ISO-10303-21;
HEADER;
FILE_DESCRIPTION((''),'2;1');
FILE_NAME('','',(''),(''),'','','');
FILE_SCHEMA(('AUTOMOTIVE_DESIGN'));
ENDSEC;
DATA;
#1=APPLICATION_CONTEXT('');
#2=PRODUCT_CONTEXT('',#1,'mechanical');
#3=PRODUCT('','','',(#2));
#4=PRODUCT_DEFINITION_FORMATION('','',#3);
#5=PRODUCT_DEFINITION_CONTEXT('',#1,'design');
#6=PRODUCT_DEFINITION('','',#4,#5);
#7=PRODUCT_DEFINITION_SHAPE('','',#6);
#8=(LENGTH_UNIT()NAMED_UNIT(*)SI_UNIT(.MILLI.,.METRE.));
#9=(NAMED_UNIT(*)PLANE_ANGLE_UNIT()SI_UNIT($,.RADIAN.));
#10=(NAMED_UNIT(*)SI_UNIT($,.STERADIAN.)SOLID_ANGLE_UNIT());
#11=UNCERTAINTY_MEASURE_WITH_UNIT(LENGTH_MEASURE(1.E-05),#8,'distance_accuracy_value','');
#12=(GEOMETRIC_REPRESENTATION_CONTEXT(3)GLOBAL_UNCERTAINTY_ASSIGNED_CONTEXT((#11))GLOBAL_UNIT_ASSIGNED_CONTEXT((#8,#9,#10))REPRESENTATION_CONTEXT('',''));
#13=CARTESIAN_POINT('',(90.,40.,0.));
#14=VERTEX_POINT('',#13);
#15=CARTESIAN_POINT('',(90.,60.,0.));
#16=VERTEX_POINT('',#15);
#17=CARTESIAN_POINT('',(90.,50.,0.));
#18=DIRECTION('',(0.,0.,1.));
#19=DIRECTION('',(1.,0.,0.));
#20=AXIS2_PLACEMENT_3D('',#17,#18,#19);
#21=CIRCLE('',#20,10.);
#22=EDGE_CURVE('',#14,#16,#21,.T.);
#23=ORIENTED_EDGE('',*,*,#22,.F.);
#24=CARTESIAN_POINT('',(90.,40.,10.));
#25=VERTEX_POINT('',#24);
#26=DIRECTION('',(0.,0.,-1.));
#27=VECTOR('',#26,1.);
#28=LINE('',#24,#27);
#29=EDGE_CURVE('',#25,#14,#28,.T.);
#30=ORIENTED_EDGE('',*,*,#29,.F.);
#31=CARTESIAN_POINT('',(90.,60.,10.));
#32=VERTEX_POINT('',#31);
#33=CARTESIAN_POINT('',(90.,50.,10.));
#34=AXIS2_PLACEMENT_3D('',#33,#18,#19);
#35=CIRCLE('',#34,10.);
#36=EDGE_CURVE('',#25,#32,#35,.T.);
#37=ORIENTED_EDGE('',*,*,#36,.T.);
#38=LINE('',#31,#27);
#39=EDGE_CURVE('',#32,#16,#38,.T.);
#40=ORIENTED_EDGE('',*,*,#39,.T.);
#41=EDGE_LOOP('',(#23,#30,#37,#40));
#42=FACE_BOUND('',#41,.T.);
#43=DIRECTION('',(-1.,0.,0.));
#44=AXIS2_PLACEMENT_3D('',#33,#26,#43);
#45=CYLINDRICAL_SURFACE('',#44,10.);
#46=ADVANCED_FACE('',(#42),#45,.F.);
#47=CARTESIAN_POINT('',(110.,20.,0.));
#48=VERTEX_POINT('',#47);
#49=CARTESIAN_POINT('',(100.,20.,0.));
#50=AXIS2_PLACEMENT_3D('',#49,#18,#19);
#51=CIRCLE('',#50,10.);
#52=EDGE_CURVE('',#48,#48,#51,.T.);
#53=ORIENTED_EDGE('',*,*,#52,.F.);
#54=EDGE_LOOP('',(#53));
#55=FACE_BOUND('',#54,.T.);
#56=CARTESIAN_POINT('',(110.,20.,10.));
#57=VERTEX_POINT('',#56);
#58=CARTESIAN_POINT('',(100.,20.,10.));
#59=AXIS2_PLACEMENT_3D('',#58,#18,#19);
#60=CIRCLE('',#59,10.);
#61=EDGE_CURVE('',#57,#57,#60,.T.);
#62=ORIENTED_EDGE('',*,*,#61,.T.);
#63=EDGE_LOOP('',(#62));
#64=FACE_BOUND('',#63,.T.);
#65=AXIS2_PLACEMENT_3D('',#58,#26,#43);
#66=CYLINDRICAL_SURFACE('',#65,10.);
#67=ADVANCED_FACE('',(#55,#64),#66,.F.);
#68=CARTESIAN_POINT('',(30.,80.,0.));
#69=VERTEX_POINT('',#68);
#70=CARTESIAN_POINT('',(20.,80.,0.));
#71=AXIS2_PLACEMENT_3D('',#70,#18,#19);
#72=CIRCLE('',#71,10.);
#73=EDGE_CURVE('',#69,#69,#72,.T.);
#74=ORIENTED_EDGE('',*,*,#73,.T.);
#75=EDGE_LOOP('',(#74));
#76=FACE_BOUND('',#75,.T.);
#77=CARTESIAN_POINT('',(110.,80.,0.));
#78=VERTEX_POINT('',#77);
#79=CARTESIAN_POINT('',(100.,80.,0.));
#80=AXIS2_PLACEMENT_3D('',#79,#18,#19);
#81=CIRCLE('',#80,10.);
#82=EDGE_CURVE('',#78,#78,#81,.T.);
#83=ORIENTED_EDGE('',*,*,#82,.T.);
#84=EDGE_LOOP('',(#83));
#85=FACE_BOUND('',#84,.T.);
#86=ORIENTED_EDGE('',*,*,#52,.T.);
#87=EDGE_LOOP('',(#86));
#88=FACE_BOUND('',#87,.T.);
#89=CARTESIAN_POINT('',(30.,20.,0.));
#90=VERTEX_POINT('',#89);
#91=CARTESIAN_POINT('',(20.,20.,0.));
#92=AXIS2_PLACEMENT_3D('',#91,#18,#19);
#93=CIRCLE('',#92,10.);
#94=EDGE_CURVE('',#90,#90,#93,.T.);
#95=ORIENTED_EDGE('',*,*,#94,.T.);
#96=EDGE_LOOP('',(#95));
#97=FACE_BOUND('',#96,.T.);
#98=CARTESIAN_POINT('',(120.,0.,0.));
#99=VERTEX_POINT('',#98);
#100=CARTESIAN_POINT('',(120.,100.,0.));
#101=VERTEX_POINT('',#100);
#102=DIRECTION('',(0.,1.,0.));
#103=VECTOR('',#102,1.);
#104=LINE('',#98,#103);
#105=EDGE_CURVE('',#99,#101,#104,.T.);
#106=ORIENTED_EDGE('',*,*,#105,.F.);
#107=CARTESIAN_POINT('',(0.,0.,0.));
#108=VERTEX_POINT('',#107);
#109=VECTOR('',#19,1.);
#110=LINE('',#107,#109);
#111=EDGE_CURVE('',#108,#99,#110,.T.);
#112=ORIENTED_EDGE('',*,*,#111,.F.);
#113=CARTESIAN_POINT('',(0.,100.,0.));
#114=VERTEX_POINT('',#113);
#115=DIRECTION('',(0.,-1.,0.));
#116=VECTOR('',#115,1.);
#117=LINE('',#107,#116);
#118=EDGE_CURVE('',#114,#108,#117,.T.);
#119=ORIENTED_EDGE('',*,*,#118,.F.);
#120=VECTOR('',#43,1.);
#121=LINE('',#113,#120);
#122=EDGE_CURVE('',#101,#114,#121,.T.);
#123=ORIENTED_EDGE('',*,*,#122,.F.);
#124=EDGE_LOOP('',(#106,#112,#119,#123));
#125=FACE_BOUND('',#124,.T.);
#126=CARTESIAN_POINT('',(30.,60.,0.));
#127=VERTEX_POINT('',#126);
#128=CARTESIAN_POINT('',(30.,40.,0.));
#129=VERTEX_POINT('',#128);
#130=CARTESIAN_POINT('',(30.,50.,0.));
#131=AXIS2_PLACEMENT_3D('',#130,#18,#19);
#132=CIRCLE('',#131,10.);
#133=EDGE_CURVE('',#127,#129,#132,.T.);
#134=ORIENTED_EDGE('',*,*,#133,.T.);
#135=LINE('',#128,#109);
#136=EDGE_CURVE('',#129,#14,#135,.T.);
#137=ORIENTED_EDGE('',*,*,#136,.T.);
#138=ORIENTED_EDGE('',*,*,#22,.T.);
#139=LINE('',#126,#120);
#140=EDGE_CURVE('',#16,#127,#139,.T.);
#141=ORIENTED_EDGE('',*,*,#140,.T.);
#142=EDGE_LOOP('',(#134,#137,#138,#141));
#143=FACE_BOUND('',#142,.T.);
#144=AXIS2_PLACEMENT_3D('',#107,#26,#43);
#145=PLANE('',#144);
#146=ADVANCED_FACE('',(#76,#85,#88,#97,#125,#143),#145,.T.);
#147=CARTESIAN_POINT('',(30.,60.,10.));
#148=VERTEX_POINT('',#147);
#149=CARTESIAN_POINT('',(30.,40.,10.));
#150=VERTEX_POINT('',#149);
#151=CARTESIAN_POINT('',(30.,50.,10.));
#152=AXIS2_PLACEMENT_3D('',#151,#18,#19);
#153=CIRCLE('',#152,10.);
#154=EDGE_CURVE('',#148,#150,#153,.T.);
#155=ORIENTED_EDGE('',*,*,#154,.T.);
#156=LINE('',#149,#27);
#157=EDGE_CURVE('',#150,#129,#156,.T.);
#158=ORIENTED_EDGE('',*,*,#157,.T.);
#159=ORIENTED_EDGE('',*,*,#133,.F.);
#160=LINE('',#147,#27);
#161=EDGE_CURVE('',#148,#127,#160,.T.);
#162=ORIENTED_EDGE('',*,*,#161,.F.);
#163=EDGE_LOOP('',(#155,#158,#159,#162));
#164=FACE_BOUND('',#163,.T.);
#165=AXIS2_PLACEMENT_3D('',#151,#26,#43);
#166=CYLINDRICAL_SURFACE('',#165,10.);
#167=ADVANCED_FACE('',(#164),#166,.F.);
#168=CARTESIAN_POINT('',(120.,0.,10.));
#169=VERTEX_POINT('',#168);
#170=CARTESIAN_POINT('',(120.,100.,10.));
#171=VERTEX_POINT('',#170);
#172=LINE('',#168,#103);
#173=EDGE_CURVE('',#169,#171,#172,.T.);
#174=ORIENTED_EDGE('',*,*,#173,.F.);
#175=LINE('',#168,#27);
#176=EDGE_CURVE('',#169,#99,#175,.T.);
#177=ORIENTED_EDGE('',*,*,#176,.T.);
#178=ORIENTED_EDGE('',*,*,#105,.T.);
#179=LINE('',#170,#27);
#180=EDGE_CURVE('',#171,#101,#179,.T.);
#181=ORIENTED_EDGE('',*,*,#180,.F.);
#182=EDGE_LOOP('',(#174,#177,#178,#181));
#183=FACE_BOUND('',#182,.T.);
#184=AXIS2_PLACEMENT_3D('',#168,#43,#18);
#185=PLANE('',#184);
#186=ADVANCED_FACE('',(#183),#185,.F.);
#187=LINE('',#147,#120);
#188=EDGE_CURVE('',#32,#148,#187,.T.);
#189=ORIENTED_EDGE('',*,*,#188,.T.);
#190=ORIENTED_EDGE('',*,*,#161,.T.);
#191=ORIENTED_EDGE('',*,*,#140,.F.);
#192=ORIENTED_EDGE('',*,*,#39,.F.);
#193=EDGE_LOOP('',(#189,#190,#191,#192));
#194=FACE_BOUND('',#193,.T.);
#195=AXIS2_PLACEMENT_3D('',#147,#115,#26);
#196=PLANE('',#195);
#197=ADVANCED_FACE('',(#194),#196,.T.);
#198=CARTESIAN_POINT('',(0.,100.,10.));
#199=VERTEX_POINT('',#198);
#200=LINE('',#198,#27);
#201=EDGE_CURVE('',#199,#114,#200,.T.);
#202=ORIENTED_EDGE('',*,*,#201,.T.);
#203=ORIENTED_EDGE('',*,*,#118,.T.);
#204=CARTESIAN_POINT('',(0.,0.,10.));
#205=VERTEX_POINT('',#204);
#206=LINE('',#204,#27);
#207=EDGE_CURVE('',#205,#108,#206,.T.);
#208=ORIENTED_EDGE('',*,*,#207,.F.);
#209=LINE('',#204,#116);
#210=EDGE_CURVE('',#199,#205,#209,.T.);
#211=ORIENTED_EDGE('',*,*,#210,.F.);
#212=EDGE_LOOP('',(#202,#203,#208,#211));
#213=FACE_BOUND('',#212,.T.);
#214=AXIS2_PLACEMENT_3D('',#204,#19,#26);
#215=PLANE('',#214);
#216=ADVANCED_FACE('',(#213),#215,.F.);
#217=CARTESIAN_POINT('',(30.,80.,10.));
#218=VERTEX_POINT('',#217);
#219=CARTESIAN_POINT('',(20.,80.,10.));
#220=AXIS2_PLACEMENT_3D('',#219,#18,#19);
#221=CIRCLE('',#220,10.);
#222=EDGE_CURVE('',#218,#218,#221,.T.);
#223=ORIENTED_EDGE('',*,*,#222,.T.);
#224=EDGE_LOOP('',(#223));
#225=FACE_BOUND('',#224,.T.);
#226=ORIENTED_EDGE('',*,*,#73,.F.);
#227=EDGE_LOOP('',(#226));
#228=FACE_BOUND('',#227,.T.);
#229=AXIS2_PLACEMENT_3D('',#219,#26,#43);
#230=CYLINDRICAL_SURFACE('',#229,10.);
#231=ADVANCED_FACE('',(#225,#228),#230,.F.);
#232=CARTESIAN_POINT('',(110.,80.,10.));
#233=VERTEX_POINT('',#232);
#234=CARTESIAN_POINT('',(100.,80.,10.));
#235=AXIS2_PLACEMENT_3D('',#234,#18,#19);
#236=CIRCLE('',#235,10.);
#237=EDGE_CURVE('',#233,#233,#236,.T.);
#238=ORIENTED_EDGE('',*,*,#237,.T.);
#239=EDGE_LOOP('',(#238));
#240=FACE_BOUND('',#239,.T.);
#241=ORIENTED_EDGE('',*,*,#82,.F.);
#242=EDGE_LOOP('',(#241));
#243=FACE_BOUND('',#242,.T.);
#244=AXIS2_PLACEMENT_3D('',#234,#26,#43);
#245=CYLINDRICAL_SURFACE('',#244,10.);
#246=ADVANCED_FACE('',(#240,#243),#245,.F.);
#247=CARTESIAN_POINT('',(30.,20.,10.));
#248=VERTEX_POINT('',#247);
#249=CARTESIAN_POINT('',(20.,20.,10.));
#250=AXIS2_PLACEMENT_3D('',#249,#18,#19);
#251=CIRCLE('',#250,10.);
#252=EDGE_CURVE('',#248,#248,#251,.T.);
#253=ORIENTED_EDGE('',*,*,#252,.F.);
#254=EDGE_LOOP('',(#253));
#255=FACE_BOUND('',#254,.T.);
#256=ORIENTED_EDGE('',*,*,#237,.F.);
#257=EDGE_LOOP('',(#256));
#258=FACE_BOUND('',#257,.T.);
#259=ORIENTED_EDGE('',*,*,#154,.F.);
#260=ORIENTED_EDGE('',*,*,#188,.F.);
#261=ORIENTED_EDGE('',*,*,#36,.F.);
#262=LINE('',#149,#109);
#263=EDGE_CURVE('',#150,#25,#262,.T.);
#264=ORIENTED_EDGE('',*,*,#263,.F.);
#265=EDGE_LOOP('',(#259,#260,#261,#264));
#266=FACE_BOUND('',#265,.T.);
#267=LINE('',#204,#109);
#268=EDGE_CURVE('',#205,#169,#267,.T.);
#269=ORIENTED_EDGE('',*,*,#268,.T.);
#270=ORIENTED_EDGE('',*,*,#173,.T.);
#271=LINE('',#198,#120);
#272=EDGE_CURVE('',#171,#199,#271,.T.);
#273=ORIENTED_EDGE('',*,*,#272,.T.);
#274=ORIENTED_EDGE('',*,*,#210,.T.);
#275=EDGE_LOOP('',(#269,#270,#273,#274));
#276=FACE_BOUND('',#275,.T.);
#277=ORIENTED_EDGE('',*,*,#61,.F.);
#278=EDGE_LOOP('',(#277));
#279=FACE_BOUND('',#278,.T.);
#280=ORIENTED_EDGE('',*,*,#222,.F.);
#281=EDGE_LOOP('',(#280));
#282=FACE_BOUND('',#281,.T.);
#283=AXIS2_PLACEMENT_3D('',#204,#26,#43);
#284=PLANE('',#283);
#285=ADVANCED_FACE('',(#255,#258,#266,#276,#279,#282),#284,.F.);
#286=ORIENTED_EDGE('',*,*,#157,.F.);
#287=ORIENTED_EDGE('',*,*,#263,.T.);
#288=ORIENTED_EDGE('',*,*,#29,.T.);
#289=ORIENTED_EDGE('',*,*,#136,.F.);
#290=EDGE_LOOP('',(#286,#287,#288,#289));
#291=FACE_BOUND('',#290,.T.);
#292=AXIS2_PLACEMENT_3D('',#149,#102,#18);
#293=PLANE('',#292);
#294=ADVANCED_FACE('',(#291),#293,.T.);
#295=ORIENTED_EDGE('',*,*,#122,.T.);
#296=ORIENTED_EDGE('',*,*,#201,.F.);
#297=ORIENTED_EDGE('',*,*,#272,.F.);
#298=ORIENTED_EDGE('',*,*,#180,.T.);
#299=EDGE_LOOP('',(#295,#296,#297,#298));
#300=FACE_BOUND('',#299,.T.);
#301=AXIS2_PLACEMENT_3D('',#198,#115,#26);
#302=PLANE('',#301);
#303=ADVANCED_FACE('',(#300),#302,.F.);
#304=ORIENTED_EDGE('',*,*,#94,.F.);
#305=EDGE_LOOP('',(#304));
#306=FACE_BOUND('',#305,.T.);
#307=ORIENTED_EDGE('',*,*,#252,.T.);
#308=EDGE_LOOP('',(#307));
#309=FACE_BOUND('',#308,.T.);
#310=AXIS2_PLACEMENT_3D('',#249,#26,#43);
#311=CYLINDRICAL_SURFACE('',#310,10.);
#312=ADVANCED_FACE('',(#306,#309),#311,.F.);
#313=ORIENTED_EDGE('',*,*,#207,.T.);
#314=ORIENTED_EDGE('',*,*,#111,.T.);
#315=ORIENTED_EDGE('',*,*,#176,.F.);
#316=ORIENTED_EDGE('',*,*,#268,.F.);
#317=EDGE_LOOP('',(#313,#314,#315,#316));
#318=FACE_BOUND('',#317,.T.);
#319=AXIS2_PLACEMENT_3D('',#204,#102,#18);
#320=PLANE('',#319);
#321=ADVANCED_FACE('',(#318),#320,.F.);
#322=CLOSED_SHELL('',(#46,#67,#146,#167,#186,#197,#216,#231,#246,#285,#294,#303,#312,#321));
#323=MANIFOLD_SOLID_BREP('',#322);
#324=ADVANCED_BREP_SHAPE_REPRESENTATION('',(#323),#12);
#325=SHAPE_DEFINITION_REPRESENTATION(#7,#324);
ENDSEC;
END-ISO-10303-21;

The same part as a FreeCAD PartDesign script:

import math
import FreeCAD as App
import Part
import Sketcher
from FreeCAD import Vector


def add_polygon(sketch, points):
    """Adds a closed chain of lines whose ends are joined by coincident constraints."""
    first, n = sketch.GeometryCount, len(points)
    for a, b in zip(points, points[1:] + points[:1]):
        sketch.addGeometry(Part.LineSegment(App.Vector(*a, 0), App.Vector(*b, 0)), False)
    for i in range(n):
        sketch.addConstraint(Sketcher.Constraint("Coincident", first + i, 2, first + (i + 1) % n, 1))

doc = App.newDocument("Part")
body = doc.addObject("PartDesign::Body", "Body")

# Sketch on XY plane
sketch1 = doc.addObject("Sketcher::SketchObject", "Sketch")
body.addObject(sketch1)
sketch1.AttachmentSupport = (doc.XY_Plane, [""])
sketch1.MapMode = "FlatFace"
add_polygon(sketch1, [(0, 100), (0, 0), (120, 0), (120, 100)])  # lines 0-3
sketch1.addGeometry(Part.Circle(Vector(20, 20, 0), Vector(0, 0, 1), 10), False)  # 4
sketch1.addGeometry(Part.Circle(Vector(100, 20, 0), Vector(0, 0, 1), 10), False)  # 5
sketch1.addGeometry(Part.Circle(Vector(20, 80, 0), Vector(0, 0, 1), 10), False)  # 6
sketch1.addGeometry(Part.ArcOfCircle(Part.Circle(Vector(30, 50, 0), Vector(0, 0, 1), 10), math.radians(90), math.radians(270)), False)  # 7
sketch1.addGeometry(Part.LineSegment(Vector(30, 60, 0), Vector(90, 60, 0)), False)  # 8
sketch1.addGeometry(Part.ArcOfCircle(Part.Circle(Vector(90, 50, 0), Vector(0, 0, 1), 10), math.radians(-90), math.radians(90)), False)  # 9
sketch1.addGeometry(Part.LineSegment(Vector(90, 40, 0), Vector(30, 40, 0)), False)  # 10
sketch1.addGeometry(Part.Circle(Vector(100, 80, 0), Vector(0, 0, 1), 10), False)  # 11
sketch1.addConstraint(Sketcher.Constraint("Tangent", 7, 1, 8, 1))
sketch1.addConstraint(Sketcher.Constraint("Tangent", 8, 2, 9, 2))
sketch1.addConstraint(Sketcher.Constraint("Tangent", 9, 1, 10, 1))
sketch1.addConstraint(Sketcher.Constraint("Tangent", 10, 2, 7, 2))
sketch1.addConstraint(Sketcher.Constraint("Vertical", 0))
sketch1.addConstraint(Sketcher.Constraint("Horizontal", 1))
sketch1.addConstraint(Sketcher.Constraint("Vertical", 2))
sketch1.addConstraint(Sketcher.Constraint("Horizontal", 3))
sketch1.addConstraint(Sketcher.Constraint("Horizontal", 8))
sketch1.addConstraint(Sketcher.Constraint("Horizontal", 10))
sketch1.addConstraint(Sketcher.Constraint("Coincident", 0, 2, -1, 1))
sketch1.addConstraint(Sketcher.Constraint("Equal", 4, 5))
sketch1.addConstraint(Sketcher.Constraint("Equal", 5, 6))
sketch1.addConstraint(Sketcher.Constraint("Equal", 6, 7))
sketch1.addConstraint(Sketcher.Constraint("Equal", 9, 11))
sketch1.addConstraint(Sketcher.Constraint("Horizontal", 4, 3, 5, 3))
sketch1.addConstraint(Sketcher.Constraint("Horizontal", 6, 3, 11, 3))
sketch1.addConstraint(Sketcher.Constraint("Vertical", 4, 3, 6, 3))
sketch1.addConstraint(Sketcher.Constraint("Vertical", 5, 3, 11, 3))
sketch1.addConstraint(Sketcher.Constraint("Diameter", 4, 20.0))
sketch1.addConstraint(Sketcher.Constraint("DistanceX", 1, 1, 1, 2, 120.0))
sketch1.addConstraint(Sketcher.Constraint("DistanceX", 8, 1, 8, 2, 60.0))
sketch1.addConstraint(Sketcher.Constraint("DistanceY", 0, 2, 0, 1, 100.0))
sketch1.addConstraint(Sketcher.Constraint("DistanceX", -1, 1, 4, 3, 20.0))
sketch1.addConstraint(Sketcher.Constraint("DistanceY", -1, 1, 4, 3, 20.0))
sketch1.addConstraint(Sketcher.Constraint("DistanceX", -1, 1, 5, 3, 100.0))
sketch1.addConstraint(Sketcher.Constraint("DistanceY", -1, 1, 6, 3, 80.0))
sketch1.addConstraint(Sketcher.Constraint("DistanceX", -1, 1, 7, 3, 30.0))
sketch1.addConstraint(Sketcher.Constraint("DistanceY", -1, 1, 7, 3, 50.0))
pad1 = doc.addObject("PartDesign::Pad", "Pad")
body.addObject(pad1)
pad1.Profile = sketch1
pad1.Length = 10

doc.recompute()
